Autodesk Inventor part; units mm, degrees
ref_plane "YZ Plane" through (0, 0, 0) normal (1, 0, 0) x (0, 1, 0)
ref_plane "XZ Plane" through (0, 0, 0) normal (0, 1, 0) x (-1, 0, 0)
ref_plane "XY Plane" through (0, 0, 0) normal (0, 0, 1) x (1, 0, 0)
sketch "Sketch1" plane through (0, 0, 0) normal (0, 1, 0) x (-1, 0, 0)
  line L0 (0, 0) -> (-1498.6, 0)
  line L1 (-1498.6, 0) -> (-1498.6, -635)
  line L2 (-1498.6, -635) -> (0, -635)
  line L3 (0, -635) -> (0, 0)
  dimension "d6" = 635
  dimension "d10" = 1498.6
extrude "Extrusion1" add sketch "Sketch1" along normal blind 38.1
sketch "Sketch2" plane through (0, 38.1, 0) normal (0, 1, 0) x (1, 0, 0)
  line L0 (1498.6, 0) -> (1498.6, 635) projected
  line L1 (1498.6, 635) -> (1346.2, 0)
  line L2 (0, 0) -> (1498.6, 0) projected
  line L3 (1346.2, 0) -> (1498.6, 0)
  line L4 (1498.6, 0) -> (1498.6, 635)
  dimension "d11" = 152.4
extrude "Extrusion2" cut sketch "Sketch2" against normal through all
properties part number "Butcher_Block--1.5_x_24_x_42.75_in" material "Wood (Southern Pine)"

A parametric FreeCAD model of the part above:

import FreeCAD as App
import Part
import Sketcher
Q = App.Units.Quantity

doc = App.newDocument("Part")
body = doc.addObject("PartDesign::Body", "Body")

sketch1 = doc.addObject("Sketcher::SketchObject", "Sketch")
body.addObject(sketch1)
sketch1.AttachmentSupport = (doc.XZ_Plane, [""])
sketch1.MapMode = "FlatFace"
sketch1.addGeometry(Part.LineSegment(App.Vector(0, -635, 0), App.Vector(0, 0, 0)), False)
sketch1.addGeometry(Part.LineSegment(App.Vector(0, 0, 0), App.Vector(1498.6, 0, 0)), False)
sketch1.addGeometry(Part.LineSegment(App.Vector(1498.6, 0, 0), App.Vector(1498.6, -635, 0)), False)
sketch1.addGeometry(Part.LineSegment(App.Vector(1498.6, -635, 0), App.Vector(0, -635, 0)), False)
sketch1.addConstraint(Sketcher.Constraint("Coincident", 0, 2, 1, 1))
sketch1.addConstraint(Sketcher.Constraint("Coincident", 1, 2, 2, 1))
sketch1.addConstraint(Sketcher.Constraint("Coincident", 2, 2, 3, 1))
sketch1.addConstraint(Sketcher.Constraint("Coincident", 3, 2, 0, 1))
sketch1.addConstraint(Sketcher.Constraint("Vertical", 0))
sketch1.addConstraint(Sketcher.Constraint("Horizontal", 1))
sketch1.addConstraint(Sketcher.Constraint("Vertical", 2))
sketch1.addConstraint(Sketcher.Constraint("Horizontal", 3))
sketch1.addConstraint(Sketcher.Constraint("Coincident", 0, 2, -1, 1))
sketch1.addConstraint(Sketcher.Constraint("DistanceX", 1, 1, 1, 2, Q("59 in")))
sketch1.addConstraint(Sketcher.Constraint("DistanceY", 0, 1, 0, 2, Q("25 in")))
pad1 = doc.addObject("PartDesign::Pad", "Pad")
body.addObject(pad1)
pad1.Profile = sketch1
pad1.Length = Q("1.5 in")
pad1.Reversed = True

sketch2 = doc.addObject("Sketcher::SketchObject", "Sketch001")
body.addObject(sketch2)
sketch2.AttachmentSupport = (doc.XZ_Plane, [""])
sketch2.MapMode = "FlatFace"
sketch2.AttachmentOffset = App.Placement(App.Vector(0, 0, -1.5 * 25.4), App.Rotation())
sketch2.addGeometry(Part.LineSegment(App.Vector(1346.2, 0, 0), App.Vector(1498.6, 0, 0)), False)
sketch2.addGeometry(Part.LineSegment(App.Vector(1498.6, 0, 0), App.Vector(1498.6, -635, 0)), False)
sketch2.addGeometry(Part.LineSegment(App.Vector(1498.6, -635, 0), App.Vector(1346.2, 0, 0)), False)
sketch2.addConstraint(Sketcher.Constraint("Coincident", 0, 2, 1, 1))
sketch2.addConstraint(Sketcher.Constraint("Coincident", 1, 2, 2, 1))
sketch2.addConstraint(Sketcher.Constraint("Coincident", 2, 2, 0, 1))
sketch2.addConstraint(Sketcher.Constraint("Horizontal", 0))
sketch2.addConstraint(Sketcher.Constraint("Vertical", 1))
sketch2.addConstraint(Sketcher.Constraint("PointOnObject", 0, 2, -1))
sketch2.addConstraint(Sketcher.Constraint("DistanceX", 0, 1, 0, 2, Q("6 in")))
sketch2.addConstraint(Sketcher.Constraint("DistanceY", 1, 2, 1, 1, Q("25 in")))
sketch2.addConstraint(Sketcher.Constraint("DistanceX", -1, 1, 0, 2, Q("59 in")))
pocket1 = doc.addObject("PartDesign::Pocket", "Pocket")
body.addObject(pocket1)
pocket1.Profile = sketch2
pocket1.Type = "ThroughAll"
pocket1.Reversed = True

doc.recompute()
